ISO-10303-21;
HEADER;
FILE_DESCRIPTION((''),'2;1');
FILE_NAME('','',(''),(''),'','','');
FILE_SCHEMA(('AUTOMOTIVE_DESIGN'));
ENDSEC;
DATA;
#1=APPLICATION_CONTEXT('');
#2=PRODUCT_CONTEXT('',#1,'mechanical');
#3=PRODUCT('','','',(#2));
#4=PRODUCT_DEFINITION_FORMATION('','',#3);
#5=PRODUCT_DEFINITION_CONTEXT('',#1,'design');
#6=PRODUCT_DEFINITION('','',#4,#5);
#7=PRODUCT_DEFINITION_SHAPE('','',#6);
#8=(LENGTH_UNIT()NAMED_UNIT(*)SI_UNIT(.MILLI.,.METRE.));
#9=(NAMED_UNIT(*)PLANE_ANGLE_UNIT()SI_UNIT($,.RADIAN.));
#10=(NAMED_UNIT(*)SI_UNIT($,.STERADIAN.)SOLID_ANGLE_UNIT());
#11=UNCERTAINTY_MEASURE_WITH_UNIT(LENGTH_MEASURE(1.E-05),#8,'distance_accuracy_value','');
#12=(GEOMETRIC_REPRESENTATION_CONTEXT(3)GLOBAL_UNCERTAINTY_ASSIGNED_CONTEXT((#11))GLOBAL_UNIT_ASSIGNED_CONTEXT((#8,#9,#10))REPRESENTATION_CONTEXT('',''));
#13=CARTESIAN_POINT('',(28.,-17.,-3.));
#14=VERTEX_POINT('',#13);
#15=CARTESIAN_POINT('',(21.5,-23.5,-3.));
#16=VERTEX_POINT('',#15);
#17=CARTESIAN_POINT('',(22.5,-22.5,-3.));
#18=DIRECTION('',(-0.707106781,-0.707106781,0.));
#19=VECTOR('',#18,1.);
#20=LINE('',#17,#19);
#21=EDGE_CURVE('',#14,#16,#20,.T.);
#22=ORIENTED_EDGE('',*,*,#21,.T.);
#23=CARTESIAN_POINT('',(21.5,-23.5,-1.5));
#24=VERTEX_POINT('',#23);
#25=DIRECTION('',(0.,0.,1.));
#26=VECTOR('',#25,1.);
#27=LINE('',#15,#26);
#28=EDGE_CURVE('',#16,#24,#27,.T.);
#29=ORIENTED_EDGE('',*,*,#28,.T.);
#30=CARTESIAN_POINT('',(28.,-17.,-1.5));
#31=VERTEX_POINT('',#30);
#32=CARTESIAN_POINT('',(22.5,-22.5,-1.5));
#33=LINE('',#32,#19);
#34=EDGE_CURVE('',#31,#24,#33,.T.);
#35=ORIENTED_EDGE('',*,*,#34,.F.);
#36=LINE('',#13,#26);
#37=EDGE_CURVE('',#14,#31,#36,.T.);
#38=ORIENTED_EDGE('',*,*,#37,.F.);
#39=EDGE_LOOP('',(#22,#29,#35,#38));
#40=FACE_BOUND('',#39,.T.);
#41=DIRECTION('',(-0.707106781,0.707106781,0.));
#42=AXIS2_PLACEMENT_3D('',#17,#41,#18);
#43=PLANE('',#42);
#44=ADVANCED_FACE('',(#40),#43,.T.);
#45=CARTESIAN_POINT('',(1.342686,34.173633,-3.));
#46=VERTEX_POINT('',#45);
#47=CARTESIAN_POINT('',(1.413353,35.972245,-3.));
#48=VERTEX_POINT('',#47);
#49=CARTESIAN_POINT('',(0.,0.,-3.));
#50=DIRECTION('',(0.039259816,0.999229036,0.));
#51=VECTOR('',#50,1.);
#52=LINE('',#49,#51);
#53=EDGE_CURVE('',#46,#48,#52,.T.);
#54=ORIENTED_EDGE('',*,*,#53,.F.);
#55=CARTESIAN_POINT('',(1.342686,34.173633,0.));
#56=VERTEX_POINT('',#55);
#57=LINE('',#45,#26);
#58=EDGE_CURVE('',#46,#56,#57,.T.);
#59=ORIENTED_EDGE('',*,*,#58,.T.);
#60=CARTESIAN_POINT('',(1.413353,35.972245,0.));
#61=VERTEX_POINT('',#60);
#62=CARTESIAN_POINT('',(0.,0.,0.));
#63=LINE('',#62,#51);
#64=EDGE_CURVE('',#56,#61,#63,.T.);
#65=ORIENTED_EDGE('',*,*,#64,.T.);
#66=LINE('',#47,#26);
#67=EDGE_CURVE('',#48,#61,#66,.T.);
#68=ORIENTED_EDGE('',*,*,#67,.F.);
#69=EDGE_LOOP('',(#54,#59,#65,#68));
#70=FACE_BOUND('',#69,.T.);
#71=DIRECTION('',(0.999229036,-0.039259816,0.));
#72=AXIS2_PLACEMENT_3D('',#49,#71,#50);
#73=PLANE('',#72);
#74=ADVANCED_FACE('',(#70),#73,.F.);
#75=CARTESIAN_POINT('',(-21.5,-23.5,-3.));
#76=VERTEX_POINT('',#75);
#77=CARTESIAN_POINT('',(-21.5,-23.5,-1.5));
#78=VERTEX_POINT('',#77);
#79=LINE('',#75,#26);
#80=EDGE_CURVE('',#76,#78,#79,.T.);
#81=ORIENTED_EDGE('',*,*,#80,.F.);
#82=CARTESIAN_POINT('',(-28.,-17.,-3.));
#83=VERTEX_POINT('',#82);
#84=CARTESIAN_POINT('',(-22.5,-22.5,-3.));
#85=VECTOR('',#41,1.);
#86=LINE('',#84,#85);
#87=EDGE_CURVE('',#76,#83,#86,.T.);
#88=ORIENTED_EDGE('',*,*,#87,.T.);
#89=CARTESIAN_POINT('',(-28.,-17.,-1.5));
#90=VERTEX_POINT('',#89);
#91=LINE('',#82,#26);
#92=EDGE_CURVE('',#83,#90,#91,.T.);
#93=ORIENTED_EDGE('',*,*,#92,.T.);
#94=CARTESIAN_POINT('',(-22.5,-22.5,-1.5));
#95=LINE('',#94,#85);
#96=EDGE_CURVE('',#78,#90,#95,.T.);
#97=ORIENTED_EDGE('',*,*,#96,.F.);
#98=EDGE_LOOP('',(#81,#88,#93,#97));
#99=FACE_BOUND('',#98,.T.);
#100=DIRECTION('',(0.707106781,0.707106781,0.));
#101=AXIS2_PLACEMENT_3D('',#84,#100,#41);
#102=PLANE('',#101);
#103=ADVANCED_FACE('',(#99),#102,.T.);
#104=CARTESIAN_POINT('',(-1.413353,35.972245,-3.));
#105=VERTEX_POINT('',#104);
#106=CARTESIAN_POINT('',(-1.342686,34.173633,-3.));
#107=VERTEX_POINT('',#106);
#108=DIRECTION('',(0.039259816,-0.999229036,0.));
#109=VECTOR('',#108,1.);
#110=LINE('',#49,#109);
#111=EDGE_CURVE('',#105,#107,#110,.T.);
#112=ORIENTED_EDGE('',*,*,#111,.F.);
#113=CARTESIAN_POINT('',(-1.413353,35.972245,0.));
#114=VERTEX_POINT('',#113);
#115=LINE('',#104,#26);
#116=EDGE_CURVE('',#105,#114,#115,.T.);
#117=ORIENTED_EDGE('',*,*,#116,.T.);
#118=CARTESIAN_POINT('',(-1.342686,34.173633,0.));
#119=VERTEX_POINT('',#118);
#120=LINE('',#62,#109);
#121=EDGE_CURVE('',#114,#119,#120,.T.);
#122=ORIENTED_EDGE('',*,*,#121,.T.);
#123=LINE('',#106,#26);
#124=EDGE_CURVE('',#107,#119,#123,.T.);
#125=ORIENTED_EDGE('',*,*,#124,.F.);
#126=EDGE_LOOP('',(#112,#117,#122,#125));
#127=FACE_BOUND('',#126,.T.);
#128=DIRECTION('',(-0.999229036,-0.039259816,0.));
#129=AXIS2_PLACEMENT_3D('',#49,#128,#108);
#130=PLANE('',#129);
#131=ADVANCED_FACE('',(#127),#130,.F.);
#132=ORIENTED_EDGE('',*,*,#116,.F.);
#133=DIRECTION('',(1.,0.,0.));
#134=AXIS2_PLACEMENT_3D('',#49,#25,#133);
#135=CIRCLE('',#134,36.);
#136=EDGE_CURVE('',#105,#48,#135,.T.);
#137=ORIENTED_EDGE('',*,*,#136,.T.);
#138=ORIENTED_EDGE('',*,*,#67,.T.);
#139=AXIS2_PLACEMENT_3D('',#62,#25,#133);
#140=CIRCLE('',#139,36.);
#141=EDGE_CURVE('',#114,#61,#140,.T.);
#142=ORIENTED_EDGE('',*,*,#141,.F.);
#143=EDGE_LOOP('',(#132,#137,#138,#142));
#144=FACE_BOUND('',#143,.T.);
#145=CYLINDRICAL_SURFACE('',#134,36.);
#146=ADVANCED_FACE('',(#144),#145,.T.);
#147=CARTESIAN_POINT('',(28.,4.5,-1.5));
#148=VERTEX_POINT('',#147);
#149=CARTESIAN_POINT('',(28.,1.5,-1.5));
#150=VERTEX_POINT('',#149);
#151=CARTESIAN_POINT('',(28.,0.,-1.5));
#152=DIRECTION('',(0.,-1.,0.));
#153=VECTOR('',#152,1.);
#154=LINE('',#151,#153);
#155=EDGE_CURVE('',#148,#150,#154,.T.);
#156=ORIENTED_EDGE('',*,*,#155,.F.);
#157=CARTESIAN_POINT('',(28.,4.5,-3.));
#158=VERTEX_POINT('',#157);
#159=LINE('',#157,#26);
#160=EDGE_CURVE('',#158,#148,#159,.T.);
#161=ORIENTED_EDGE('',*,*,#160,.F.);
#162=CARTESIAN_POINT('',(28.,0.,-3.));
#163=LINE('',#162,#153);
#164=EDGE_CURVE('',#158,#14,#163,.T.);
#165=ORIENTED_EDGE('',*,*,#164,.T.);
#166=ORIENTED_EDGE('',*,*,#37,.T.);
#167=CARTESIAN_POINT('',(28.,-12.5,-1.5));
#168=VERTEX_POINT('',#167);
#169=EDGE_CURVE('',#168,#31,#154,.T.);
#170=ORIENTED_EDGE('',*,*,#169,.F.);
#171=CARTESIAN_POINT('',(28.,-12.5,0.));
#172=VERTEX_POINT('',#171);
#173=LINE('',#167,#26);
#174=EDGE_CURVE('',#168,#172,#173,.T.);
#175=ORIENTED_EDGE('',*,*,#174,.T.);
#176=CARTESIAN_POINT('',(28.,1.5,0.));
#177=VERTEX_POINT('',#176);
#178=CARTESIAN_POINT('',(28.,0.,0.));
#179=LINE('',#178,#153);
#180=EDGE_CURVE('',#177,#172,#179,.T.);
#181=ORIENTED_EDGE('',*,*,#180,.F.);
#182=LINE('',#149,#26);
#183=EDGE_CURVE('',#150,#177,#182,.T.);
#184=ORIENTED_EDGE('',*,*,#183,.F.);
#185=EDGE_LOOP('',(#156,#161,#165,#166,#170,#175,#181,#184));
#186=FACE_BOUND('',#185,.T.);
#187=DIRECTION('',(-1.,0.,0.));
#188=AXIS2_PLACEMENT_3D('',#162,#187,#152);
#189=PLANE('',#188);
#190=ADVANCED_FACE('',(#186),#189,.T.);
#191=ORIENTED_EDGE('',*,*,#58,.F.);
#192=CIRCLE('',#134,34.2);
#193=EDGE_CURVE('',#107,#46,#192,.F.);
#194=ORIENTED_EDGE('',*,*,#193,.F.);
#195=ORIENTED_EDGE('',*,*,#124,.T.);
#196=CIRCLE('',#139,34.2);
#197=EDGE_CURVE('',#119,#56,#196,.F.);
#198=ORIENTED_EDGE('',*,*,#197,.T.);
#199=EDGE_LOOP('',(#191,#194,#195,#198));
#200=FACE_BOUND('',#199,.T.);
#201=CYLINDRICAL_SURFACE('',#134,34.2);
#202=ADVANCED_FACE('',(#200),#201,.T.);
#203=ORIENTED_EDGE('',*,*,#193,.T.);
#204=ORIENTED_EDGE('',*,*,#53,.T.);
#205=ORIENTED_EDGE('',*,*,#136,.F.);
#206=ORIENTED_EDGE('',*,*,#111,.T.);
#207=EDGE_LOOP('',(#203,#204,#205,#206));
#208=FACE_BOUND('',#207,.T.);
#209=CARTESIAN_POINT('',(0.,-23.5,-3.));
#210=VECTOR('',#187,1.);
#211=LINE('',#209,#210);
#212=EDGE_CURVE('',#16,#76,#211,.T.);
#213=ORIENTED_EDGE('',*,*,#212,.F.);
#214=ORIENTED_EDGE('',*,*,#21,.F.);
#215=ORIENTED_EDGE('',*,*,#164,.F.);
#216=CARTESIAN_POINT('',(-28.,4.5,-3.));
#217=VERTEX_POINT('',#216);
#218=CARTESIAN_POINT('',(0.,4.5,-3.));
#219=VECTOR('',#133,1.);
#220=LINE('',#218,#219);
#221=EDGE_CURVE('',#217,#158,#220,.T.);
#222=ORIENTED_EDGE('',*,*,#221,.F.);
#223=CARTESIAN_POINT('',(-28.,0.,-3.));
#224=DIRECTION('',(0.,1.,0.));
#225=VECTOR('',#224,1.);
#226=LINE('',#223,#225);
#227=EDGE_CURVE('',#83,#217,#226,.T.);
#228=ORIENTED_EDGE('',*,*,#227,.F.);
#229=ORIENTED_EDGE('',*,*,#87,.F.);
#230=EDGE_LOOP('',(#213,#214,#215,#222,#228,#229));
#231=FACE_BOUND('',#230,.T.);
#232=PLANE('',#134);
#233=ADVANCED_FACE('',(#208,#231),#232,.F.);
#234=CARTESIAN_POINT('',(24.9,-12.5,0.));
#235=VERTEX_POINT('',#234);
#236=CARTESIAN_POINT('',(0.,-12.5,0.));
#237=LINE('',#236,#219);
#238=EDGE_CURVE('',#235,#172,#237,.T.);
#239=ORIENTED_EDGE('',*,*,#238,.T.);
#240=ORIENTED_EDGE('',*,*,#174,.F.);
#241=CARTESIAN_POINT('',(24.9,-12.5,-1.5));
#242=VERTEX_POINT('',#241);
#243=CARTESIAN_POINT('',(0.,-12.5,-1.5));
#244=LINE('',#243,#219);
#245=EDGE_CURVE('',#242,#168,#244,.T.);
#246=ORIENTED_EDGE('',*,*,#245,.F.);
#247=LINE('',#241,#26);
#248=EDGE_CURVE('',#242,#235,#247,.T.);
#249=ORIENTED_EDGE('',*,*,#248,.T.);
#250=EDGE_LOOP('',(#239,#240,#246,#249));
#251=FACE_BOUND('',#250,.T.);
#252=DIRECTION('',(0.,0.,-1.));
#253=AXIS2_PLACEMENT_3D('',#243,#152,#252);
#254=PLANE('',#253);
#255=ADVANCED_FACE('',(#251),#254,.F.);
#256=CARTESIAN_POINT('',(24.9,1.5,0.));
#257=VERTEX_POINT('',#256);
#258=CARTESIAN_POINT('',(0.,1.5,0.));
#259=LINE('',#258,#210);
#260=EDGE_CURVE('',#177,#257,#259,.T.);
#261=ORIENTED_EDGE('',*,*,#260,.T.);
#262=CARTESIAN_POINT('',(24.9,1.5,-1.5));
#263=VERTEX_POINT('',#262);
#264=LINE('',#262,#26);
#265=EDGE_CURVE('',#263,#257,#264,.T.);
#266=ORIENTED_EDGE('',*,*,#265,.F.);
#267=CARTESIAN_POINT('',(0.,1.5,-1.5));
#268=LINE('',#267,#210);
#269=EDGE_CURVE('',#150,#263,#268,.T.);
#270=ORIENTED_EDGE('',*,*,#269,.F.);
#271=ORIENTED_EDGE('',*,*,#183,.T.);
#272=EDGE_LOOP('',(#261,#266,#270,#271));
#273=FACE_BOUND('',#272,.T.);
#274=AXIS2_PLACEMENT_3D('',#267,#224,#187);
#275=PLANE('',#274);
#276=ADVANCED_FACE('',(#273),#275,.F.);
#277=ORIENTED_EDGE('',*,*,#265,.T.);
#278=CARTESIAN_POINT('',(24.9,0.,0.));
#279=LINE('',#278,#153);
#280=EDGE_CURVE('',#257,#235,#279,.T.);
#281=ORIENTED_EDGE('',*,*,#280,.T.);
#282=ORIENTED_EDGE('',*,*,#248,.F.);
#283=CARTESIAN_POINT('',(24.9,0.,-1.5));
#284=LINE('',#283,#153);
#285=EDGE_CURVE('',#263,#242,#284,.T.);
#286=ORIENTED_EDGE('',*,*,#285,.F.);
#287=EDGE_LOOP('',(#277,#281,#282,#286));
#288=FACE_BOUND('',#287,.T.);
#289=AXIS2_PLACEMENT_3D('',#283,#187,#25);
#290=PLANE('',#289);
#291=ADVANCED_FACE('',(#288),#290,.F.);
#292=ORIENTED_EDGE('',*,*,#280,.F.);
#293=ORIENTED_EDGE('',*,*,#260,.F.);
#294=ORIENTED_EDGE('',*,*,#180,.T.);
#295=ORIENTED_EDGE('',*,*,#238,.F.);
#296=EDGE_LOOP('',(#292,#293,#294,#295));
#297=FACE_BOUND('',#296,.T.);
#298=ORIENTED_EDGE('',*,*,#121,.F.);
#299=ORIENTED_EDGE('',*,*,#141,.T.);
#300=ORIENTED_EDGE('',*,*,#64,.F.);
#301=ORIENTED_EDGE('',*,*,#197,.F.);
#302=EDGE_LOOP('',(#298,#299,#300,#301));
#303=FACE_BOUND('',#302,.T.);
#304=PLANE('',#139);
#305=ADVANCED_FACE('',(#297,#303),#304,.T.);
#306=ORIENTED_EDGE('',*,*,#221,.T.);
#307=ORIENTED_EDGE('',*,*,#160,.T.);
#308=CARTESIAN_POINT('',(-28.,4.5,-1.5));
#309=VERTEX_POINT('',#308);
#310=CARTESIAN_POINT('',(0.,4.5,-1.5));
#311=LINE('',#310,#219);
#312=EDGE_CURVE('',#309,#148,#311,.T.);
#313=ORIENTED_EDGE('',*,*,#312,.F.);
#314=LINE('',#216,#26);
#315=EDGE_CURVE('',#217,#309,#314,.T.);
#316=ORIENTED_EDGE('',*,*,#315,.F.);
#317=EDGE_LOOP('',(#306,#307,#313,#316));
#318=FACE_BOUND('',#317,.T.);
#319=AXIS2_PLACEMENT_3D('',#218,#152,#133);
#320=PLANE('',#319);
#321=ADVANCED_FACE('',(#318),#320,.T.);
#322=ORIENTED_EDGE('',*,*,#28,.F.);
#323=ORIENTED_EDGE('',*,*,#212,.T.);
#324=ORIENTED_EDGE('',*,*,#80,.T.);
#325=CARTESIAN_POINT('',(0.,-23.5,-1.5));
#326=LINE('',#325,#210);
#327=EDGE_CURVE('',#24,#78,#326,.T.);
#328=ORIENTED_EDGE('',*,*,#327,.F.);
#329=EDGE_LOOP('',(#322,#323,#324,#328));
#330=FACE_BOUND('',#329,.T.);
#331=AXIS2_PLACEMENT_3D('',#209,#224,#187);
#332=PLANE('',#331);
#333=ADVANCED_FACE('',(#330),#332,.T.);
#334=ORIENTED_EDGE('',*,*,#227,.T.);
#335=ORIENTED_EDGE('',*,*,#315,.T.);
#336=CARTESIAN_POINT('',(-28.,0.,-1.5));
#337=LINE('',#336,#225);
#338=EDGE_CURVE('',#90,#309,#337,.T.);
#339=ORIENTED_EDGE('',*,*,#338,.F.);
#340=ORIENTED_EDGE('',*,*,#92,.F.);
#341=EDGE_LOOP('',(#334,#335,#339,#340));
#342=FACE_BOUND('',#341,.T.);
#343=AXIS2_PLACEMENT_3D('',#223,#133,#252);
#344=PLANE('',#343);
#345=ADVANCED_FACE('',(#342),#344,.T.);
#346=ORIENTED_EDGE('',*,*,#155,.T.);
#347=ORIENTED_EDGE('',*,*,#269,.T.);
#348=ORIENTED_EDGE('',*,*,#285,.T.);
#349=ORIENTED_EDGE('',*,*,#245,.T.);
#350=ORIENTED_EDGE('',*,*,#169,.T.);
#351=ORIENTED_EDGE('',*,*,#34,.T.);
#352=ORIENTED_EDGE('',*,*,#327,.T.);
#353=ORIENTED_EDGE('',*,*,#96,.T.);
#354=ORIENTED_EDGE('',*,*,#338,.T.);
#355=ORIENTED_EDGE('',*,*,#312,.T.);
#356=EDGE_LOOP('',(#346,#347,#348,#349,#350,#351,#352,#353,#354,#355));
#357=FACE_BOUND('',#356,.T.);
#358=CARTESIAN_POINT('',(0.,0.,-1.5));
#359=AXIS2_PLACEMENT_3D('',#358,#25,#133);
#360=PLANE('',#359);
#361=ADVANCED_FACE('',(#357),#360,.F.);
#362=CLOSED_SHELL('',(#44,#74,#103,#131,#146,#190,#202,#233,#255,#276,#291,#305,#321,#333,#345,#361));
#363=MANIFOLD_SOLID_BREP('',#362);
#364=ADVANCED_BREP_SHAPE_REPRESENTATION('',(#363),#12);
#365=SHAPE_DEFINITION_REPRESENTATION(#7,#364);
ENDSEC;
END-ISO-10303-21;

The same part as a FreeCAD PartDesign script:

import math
import FreeCAD as App
import Part
import Sketcher
Q = App.Units.Quantity


def add_polygon(sketch, points):
    """Adds a closed chain of lines whose ends are joined by coincident constraints."""
    first, n = sketch.GeometryCount, len(points)
    for a, b in zip(points, points[1:] + points[:1]):
        sketch.addGeometry(Part.LineSegment(App.Vector(*a, 0), App.Vector(*b, 0)), False)
    for i in range(n):
        sketch.addConstraint(Sketcher.Constraint("Coincident", first + i, 2, first + (i + 1) % n, 1))

doc = App.newDocument("Part")
params = doc.addObject("Spreadsheet::Sheet", "Params")
for row, (alias, value) in enumerate([
    ("sketch1_radius", "36 mm"),
    ("sketch1_radius2", "34.200001 mm"),
    ("sketch1_width", "43 mm"),
    ("sketch1_width2", "56 mm"),
    ("sketch1_height", "21.5 mm"),
    ("pad1_length", "3 mm"),
    ("sketch2_width", "56 mm"),
    ("sketch2_width2", "43 mm"),
    ("sketch2_height", "14 mm"),
    ("sketch2_height2", "3 mm"),
    ("sketch2_width3", "3.1 mm"),
    ("pad2_length", "1.5 mm"),
], start=1):
    params.set(f"A{row}", alias)
    params.set(f"B{row}", "=" + value)
    params.setAlias(f"B{row}", alias)

body = doc.addObject("PartDesign::Body", "Body")

# Sketch on XY plane
sketch1 = body.newObject("Sketcher::SketchObject", "Sketch")
sketch1.AttachmentSupport = (doc.getObject("XY_Plane"), [""])
sketch1.MapMode = "FlatFace"
sketch1.addGeometry(Part.ArcOfCircle(Part.Circle(App.Vector(0, -0.000001, 0), App.Vector(0, 0, 1), 34.200001), math.radians(87.75), math.radians(90)), False)  # 0
sketch1.addGeometry(Part.ArcOfCircle(Part.Circle(App.Vector(0, -0.000001, 0), App.Vector(0, 0, 1), 34.200001), math.radians(90), math.radians(92.25)), False)  # 1
sketch1.addGeometry(Part.LineSegment(App.Vector(-1.342686, 34.173633, 0), App.Vector(-1.413353, 35.972245, 0)), False)  # 2
sketch1.addGeometry(Part.ArcOfCircle(Part.Circle(App.Vector(0, 0, 0), App.Vector(0, 0, 1), 36), math.radians(92.25), math.radians(270)), False)  # 3
sketch1.addGeometry(Part.ArcOfCircle(Part.Circle(App.Vector(0, 0, 0), App.Vector(0, 0, 1), 36), math.radians(-90), math.radians(87.75)), False)  # 4
sketch1.addGeometry(Part.LineSegment(App.Vector(1.413353, 35.972245, 0), App.Vector(1.342686, 34.173633, 0)), False)  # 5
add_polygon(sketch1, [(28, 4.5), (28, -17), (21.5, -23.5), (-21.5, -23.5), (-28, -17), (-28, 4.5)])  # lines 6-11
sketch1.addConstraint([
    Sketcher.Constraint("Tangent", 0, 2, 1, 1),
    Sketcher.Constraint("Coincident", 1, 2, 2, 1),
    Sketcher.Constraint("Coincident", 2, 2, 3, 1),
    Sketcher.Constraint("Tangent", 3, 2, 4, 1),
    Sketcher.Constraint("Coincident", 4, 2, 5, 1),
    Sketcher.Constraint("Coincident", 5, 2, 0, 1),
    Sketcher.Constraint("Vertical", 6),
    Sketcher.Constraint("Horizontal", 8),
    Sketcher.Constraint("Vertical", 10),
    Sketcher.Constraint("Horizontal", 11),
    Sketcher.Constraint("Coincident", 0, 3, -1, 1),
    Sketcher.Constraint("Coincident", 3, 3, -1, 1),
    Sketcher.Constraint("Equal", 0, 1),
    Sketcher.Constraint("Equal", 3, 4),
    Sketcher.Constraint("Symmetric", 6, 2, 9, 2, -2),
    Sketcher.Constraint("PointOnObject", 0, 2, -2),
    Sketcher.Constraint("PointOnObject", 3, 2, -2),
    Sketcher.Constraint("Perpendicular", 7, 9),
    Sketcher.Constraint("Horizontal", 2, 2, 4, 2),
    Sketcher.Constraint("Horizontal", 1, 2, 5, 2),
    Sketcher.Constraint("Equal", 7, 9),
    Sketcher.Constraint("Radius", 3, Q("36 mm")),
    Sketcher.Constraint("Radius", 0, Q("34.200001 mm")),
    Sketcher.Constraint("DistanceX", 8, 2, 8, 1, Q("43 mm")),
    Sketcher.Constraint("DistanceX", 11, 1, 11, 2, Q("56 mm")),
    Sketcher.Constraint("DistanceY", 6, 2, 6, 1, Q("21.5 mm")),
    Sketcher.Constraint("DistanceY", 6, 2, -1, 1, Q("17 mm")),
    Sketcher.Constraint("Angle", 2, Q("92.25 deg")),
    Sketcher.Constraint("DistanceX", 1, 2, 4, 2, Q("2.756039 mm")),
])
sketch1.setExpression("Constraints[27]", "Params.sketch1_radius")
sketch1.setExpression("Constraints[28]", "Params.sketch1_radius2")
sketch1.setExpression("Constraints[29]", "Params.sketch1_width")
sketch1.setExpression("Constraints[30]", "Params.sketch1_width2")
sketch1.setExpression("Constraints[31]", "Params.sketch1_height")
pad1 = body.newObject("PartDesign::Pad", "Pad")
pad1.Profile = sketch1
pad1.setExpression("Length", "Params.pad1_length")
pad1.Reversed = True

# Sketch on XY plane
sketch2 = body.newObject("Sketcher::SketchObject", "Sketch001")
sketch2.AttachmentSupport = (doc.getObject("XY_Plane"), [""])
sketch2.MapMode = "FlatFace"
add_polygon(sketch2, [(28, 4.5), (-28, 4.5), (-28, -17), (-21.5, -23.5), (21.5, -23.5), (28, -17), (28, -12.5), (24.9, -12.5), (24.9, 1.5), (28, 1.5)])  # lines 0-9
sketch2.addConstraint([
    Sketcher.Constraint("Horizontal", 0),
    Sketcher.Constraint("Vertical", 1),
    Sketcher.Constraint("Horizontal", 3),
    Sketcher.Constraint("Vertical", 5),
    Sketcher.Constraint("Horizontal", 6),
    Sketcher.Constraint("Vertical", 7),
    Sketcher.Constraint("Horizontal", 8),
    Sketcher.Constraint("Vertical", 9),
    Sketcher.Constraint("Symmetric", 1, 2, 4, 2, -2),
    Sketcher.Constraint("Perpendicular", 2, 4),
    Sketcher.Constraint("Vertical", 5, 2, 8, 2),
    Sketcher.Constraint("Equal", 2, 4),
    Sketcher.Constraint("DistanceX", 0, 2, 0, 1, Q("56 mm")),
    Sketcher.Constraint("DistanceX", 3, 1, 3, 2, Q("43 mm")),
    Sketcher.Constraint("DistanceY", 7, 1, 7, 2, Q("14 mm")),
    Sketcher.Constraint("DistanceY", 9, 1, 9, 2, Q("3 mm")),
    Sketcher.Constraint("DistanceX", 6, 2, 6, 1, Q("3.1 mm")),
    Sketcher.Constraint("DistanceY", 1, 2, 1, 1, Q("21.5 mm")),
    Sketcher.Constraint("DistanceY", 1, 2, -1, 1, Q("17 mm")),
])
sketch2.setExpression("Constraints[22]", "Params.sketch2_width")
sketch2.setExpression("Constraints[23]", "Params.sketch2_width2")
sketch2.setExpression("Constraints[24]", "Params.sketch2_height")
sketch2.setExpression("Constraints[25]", "Params.sketch2_height2")
sketch2.setExpression("Constraints[26]", "Params.sketch2_width3")
pad2 = body.newObject("PartDesign::Pad", "Pad001")
pad2.Profile = sketch2
pad2.setExpression("Length", "Params.pad2_length")
pad2.Reversed = True

doc.recompute()
